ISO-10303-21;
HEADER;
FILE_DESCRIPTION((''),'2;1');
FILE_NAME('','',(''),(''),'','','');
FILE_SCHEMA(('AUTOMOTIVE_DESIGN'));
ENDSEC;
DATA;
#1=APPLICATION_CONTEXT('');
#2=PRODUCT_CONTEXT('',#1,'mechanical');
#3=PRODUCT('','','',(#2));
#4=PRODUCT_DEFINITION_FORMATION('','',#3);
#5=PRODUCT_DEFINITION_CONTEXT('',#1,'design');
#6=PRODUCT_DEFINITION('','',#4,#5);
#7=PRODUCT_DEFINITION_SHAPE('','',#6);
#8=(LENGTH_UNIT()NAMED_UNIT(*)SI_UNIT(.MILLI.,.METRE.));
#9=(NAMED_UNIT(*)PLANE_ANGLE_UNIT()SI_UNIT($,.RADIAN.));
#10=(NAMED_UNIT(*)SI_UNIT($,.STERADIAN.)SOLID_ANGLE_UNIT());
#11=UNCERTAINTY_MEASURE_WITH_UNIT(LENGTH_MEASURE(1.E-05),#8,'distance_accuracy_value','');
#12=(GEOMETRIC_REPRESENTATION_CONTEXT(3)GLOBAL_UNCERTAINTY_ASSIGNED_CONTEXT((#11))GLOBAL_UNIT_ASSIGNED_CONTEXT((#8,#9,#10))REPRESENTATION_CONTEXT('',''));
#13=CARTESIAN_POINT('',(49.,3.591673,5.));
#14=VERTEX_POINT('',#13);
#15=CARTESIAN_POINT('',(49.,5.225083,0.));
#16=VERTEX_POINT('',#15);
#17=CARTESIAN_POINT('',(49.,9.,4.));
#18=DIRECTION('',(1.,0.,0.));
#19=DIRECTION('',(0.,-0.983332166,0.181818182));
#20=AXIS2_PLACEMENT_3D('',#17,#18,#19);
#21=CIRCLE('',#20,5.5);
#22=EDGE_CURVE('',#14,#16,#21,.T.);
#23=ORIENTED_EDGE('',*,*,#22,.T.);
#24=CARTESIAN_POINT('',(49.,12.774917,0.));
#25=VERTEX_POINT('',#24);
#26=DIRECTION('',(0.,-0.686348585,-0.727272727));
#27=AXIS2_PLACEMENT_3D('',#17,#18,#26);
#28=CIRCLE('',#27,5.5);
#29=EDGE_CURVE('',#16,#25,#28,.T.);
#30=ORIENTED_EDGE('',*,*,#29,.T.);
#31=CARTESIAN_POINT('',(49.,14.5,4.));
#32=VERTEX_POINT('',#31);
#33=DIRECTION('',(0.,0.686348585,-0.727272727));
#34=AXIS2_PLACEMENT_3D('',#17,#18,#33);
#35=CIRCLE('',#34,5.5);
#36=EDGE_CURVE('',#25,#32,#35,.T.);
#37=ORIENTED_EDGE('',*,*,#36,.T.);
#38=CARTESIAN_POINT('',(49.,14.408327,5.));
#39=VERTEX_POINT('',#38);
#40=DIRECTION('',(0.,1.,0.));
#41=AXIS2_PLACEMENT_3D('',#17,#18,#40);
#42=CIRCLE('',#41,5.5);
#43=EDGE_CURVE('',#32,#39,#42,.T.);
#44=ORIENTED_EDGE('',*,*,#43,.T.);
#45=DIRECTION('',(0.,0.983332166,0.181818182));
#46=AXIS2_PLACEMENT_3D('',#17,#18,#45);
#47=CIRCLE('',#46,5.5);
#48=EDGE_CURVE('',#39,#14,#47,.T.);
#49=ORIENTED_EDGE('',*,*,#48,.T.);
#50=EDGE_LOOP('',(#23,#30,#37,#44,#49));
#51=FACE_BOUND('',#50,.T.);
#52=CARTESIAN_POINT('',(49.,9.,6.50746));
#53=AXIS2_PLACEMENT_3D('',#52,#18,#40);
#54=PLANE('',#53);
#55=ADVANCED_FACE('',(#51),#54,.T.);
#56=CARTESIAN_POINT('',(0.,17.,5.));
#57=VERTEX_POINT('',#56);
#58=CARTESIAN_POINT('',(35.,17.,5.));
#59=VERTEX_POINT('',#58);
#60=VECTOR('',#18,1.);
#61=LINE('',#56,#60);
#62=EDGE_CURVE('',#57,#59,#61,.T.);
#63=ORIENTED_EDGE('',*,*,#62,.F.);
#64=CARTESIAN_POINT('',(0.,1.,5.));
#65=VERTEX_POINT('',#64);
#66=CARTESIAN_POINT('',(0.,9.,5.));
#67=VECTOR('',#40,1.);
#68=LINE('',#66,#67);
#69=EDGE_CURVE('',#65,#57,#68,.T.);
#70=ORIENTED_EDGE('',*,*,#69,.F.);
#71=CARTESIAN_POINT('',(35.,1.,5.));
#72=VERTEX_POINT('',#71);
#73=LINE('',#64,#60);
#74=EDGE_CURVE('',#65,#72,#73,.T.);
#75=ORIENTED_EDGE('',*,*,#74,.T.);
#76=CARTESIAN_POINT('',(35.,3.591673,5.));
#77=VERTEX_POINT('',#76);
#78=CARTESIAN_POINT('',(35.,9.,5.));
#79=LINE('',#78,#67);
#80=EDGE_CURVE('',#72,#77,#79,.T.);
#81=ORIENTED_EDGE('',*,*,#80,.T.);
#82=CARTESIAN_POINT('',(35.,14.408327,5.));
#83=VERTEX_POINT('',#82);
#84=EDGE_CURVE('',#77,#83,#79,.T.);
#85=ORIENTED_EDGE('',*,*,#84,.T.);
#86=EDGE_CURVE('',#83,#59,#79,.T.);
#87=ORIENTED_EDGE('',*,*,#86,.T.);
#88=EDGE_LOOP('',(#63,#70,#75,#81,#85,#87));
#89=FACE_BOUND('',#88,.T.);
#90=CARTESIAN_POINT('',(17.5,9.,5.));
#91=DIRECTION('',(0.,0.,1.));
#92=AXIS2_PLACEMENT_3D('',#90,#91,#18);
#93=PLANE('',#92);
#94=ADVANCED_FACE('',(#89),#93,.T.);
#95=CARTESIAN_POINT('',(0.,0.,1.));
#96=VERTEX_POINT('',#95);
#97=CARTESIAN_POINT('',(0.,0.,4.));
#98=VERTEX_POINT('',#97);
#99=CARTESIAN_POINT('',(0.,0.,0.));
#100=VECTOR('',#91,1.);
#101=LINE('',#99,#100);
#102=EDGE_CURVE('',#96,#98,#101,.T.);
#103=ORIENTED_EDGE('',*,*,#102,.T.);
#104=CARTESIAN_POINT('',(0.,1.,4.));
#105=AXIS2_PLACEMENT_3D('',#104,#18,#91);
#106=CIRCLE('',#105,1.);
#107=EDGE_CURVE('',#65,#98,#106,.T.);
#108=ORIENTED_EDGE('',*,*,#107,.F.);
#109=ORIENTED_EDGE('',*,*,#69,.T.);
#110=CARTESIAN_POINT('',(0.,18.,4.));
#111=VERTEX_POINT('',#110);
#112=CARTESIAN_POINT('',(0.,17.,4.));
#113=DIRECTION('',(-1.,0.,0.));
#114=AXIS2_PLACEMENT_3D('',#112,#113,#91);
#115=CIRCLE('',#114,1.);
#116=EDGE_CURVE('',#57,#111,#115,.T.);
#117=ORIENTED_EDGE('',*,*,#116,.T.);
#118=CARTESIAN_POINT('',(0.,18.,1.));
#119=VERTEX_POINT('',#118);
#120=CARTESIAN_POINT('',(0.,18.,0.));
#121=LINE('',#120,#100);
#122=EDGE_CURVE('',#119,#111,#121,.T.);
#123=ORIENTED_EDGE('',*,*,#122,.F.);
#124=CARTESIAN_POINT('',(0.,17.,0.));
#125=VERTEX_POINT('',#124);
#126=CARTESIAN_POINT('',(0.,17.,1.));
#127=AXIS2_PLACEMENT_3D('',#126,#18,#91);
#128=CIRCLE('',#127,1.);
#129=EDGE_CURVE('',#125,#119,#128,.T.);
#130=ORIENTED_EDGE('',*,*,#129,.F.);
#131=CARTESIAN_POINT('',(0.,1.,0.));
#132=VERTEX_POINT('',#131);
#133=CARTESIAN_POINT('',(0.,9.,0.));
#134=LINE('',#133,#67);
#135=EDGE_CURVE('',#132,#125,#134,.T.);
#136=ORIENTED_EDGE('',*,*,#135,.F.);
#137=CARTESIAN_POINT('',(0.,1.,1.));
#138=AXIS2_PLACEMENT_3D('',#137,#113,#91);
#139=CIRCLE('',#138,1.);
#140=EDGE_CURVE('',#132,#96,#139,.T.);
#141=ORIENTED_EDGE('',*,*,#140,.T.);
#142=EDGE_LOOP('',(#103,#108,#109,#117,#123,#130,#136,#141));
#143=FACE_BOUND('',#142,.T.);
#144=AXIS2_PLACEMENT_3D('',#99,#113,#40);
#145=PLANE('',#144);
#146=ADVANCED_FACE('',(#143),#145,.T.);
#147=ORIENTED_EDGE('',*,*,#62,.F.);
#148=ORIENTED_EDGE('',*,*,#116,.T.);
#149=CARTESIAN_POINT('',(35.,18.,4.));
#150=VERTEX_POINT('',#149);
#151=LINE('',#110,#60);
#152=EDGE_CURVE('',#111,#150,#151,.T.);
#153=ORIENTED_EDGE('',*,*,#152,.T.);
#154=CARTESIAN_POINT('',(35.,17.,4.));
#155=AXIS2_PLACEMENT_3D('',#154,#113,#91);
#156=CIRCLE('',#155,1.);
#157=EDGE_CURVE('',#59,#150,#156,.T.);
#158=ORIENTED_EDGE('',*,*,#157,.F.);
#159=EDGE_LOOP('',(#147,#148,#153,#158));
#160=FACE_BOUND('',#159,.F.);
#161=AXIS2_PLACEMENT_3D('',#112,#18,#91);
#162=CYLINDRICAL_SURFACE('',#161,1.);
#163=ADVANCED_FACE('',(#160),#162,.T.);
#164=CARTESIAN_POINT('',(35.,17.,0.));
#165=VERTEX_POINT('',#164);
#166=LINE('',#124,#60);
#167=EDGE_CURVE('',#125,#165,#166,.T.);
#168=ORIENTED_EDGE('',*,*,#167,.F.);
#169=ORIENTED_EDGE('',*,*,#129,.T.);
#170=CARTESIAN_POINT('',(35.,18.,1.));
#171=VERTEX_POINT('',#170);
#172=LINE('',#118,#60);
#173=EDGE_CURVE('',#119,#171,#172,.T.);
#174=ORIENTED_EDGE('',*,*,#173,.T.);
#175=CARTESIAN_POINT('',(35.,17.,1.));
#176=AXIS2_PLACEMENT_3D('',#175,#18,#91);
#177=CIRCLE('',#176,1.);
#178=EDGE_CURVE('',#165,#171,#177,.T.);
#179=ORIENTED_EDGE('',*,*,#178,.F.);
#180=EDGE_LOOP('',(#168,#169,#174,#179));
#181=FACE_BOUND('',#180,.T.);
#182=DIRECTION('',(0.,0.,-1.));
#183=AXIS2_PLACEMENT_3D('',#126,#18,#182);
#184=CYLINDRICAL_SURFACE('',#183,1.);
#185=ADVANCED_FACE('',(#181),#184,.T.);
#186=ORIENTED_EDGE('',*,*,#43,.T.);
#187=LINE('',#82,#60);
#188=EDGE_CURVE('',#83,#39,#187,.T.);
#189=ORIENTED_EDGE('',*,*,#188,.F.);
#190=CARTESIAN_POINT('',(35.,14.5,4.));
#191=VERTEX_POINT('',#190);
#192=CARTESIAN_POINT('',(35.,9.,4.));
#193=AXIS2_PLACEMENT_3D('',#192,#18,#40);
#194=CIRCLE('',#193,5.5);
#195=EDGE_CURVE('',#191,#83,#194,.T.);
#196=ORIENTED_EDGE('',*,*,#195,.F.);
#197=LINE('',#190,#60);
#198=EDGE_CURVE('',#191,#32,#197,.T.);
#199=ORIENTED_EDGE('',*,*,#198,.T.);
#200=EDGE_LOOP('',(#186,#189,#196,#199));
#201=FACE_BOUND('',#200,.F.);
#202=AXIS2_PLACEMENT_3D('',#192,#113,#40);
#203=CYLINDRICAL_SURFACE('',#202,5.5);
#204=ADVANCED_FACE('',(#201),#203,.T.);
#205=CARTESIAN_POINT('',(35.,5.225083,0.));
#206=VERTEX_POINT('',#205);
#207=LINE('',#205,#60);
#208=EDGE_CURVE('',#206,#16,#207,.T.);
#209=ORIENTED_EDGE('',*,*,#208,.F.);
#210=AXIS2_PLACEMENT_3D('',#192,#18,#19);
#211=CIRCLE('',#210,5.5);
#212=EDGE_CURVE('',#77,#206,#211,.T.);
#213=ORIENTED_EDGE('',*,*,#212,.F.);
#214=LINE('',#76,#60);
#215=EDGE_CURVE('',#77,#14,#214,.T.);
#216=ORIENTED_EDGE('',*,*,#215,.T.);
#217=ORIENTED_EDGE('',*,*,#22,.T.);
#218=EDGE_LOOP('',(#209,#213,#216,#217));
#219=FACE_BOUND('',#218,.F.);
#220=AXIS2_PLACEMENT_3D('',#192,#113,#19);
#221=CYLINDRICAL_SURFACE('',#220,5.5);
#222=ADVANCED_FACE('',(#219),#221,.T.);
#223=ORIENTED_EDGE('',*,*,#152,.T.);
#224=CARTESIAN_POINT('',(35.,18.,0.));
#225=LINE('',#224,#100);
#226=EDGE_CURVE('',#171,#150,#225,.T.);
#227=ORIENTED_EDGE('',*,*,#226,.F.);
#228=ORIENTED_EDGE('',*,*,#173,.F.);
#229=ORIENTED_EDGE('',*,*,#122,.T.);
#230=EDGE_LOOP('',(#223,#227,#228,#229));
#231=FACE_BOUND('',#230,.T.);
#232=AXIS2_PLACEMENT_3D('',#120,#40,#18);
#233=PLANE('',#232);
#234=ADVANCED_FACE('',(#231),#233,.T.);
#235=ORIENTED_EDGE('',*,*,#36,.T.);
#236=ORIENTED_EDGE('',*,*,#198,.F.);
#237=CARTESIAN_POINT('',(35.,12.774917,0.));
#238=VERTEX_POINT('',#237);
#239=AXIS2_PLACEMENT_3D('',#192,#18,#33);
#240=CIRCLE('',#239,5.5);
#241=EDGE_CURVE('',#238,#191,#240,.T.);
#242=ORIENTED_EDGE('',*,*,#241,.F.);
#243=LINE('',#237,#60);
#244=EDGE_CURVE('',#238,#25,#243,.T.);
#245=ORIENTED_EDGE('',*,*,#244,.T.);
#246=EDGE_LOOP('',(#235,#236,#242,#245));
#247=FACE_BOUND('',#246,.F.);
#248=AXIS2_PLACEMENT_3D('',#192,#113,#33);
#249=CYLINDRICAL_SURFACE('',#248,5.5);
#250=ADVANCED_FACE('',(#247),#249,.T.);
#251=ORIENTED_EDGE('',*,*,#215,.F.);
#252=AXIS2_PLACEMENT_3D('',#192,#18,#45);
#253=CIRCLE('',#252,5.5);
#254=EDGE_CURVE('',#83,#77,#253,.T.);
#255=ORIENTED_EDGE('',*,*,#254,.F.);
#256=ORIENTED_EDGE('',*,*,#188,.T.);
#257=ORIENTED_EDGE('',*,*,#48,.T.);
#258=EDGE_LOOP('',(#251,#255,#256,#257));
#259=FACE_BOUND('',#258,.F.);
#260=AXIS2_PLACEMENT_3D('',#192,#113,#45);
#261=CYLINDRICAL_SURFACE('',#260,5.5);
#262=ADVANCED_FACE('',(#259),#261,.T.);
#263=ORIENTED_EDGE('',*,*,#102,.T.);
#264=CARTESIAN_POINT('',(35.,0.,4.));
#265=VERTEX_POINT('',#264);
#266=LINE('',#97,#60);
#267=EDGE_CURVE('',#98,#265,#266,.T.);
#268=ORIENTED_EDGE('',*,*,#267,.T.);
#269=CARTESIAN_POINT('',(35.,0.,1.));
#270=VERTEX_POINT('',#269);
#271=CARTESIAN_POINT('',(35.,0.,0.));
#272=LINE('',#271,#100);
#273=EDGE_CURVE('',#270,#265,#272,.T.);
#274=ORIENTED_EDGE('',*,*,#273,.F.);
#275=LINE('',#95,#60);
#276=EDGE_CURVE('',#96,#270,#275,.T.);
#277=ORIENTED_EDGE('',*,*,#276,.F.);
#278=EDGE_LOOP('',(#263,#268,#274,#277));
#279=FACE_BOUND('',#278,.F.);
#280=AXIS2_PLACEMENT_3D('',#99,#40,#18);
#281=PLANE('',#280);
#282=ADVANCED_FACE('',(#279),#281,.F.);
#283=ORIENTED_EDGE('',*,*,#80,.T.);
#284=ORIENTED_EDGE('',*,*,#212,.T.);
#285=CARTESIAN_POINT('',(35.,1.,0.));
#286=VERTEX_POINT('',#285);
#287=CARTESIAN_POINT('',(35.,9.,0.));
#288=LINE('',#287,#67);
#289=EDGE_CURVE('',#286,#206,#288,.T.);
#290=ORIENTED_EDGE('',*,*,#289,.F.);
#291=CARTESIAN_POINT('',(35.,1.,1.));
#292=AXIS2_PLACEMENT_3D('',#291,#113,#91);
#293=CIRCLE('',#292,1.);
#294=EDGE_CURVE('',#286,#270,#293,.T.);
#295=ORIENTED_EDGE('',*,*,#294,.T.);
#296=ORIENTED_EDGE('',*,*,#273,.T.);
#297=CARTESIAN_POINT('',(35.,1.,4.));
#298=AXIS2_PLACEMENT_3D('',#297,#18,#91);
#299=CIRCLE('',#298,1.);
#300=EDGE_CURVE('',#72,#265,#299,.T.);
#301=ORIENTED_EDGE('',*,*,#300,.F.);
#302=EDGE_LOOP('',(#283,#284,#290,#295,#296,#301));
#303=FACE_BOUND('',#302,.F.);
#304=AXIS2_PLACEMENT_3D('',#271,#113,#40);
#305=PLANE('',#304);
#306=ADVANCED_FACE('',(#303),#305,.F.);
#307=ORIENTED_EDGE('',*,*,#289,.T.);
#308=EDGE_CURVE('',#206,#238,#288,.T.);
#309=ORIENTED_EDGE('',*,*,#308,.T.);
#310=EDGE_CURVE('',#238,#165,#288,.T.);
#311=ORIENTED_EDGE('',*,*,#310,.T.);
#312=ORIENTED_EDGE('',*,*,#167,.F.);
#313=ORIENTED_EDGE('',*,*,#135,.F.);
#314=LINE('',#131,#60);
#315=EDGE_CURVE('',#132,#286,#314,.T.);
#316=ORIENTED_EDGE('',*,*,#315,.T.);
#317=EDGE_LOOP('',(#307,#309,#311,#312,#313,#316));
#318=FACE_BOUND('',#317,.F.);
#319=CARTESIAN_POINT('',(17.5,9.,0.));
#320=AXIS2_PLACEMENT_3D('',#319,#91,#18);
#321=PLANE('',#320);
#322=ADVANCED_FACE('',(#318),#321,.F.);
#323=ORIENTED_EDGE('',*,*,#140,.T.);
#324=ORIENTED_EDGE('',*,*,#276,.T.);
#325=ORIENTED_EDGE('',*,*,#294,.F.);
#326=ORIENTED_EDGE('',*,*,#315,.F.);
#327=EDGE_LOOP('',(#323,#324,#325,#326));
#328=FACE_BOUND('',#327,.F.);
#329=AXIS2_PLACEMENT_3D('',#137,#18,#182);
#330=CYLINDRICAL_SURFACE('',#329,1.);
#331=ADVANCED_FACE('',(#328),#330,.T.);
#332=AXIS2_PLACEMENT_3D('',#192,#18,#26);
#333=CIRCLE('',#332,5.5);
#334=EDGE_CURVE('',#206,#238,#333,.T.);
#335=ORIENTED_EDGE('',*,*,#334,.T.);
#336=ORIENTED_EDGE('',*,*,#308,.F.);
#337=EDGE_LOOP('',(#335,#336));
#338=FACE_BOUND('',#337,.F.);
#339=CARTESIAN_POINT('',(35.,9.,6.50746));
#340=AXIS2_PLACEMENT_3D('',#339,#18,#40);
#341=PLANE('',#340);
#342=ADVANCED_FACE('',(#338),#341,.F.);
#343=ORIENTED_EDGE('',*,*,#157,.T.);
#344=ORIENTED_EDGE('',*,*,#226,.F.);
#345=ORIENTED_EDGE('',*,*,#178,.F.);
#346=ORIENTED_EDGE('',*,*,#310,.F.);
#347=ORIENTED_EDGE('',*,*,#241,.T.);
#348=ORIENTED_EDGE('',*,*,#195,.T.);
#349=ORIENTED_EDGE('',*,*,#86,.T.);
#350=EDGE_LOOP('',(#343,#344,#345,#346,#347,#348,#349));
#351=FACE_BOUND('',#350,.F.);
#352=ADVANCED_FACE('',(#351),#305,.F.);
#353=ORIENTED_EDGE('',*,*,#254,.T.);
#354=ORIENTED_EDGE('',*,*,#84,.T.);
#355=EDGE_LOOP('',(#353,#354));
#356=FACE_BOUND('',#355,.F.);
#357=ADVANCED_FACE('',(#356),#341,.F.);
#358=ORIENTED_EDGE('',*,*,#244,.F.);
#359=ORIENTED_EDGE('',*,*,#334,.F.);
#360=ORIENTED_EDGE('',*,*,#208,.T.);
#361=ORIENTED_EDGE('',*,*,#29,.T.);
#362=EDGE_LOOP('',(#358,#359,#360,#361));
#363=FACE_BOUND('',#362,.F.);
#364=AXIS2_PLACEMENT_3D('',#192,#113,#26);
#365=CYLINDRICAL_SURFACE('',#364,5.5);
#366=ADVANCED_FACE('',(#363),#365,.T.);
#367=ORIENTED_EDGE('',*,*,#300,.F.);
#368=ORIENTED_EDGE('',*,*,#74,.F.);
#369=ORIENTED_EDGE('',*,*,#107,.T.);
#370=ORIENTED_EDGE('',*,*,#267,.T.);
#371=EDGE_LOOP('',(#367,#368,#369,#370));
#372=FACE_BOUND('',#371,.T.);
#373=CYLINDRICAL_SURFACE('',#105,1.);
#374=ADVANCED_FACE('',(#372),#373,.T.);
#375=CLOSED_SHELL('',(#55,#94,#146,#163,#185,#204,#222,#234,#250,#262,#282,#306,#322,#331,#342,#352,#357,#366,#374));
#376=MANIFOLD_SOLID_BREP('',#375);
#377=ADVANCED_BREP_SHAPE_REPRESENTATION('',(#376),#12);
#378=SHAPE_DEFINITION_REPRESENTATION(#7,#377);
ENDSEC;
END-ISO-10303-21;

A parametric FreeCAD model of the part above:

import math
import FreeCAD as App
import Part
import Sketcher

V = App.Vector


def edges_at(feature, points):
    """Names of the edges that pass closest to the given points."""
    edges = feature.Shape.Edges
    near = lambda p: min(range(len(edges)), key=lambda i: edges[i].distToShape(Part.Vertex(*p))[0])
    return sorted({f"Edge{near(p) + 1}" for p in points})


def add_polygon(sketch, points):
    """Adds a closed chain of lines whose ends are joined by coincident constraints."""
    first, n = sketch.GeometryCount, len(points)
    for a, b in zip(points, points[1:] + points[:1]):
        sketch.addGeometry(Part.LineSegment(App.Vector(*a, 0), App.Vector(*b, 0)), False)
    for i in range(n):
        sketch.addConstraint(Sketcher.Constraint("Coincident", first + i, 2, first + (i + 1) % n, 1))

doc = App.newDocument("Part")
params = doc.addObject("Spreadsheet::Sheet", "Params")
for row, (alias, value) in enumerate([
    ("sketch1_width", "35 mm"),
    ("sketch1_height", "18 mm"),
    ("pad1_length", "5 mm"),
    ("sketch2_radius", "5.5 mm"),
    ("pad2_length", "14 mm"),
    ("fillet_radius", "1 mm"),
], start=1):
    params.set(f"A{row}", alias)
    params.set(f"B{row}", "=" + value)
    params.setAlias(f"B{row}", alias)

body = doc.addObject("PartDesign::Body", "Body")

# Sketch on XY plane
sketch1 = body.newObject("Sketcher::SketchObject", "Sketch")
sketch1.AttachmentSupport = (doc.getObject("XY_Plane"), [""])
sketch1.MapMode = "FlatFace"
add_polygon(sketch1, [(0, 18), (0, 0), (35, 0), (35, 18)])  # lines 0-3
sketch1.addConstraint(Sketcher.Constraint("Vertical", 0))
sketch1.addConstraint(Sketcher.Constraint("Horizontal", 1))
sketch1.addConstraint(Sketcher.Constraint("Vertical", 2))
sketch1.addConstraint(Sketcher.Constraint("Horizontal", 3))
sketch1.addConstraint(Sketcher.Constraint("Coincident", 0, 2, -1, 1))
sketch1.addConstraint(Sketcher.Constraint("DistanceX", 1, 1, 1, 2, 35.0))
sketch1.addConstraint(Sketcher.Constraint("DistanceY", 0, 2, 0, 1, 18.0))
sketch1.setExpression("Constraints[9]", "Params.sketch1_width")
sketch1.setExpression("Constraints[10]", "Params.sketch1_height")
pad1 = body.newObject("PartDesign::Pad", "Pad")
pad1.Profile = sketch1
pad1.setExpression("Length", "Params.pad1_length")

# Sketch on YZ plane
sketch2 = body.newObject("Sketcher::SketchObject", "Sketch001")
sketch2.AttachmentSupport = (doc.getObject("YZ_Plane"), [""])
sketch2.MapMode = "FlatFace"
sketch2.AttachmentOffset = App.Placement(V(0, 0, 35), App.Rotation())
sketch2.addGeometry(Part.ArcOfCircle(Part.Circle(V(9, 4, 0), V(0, 0, 1), 5.5), math.radians(10.475682), math.radians(169.524318)), False)
sketch2.addGeometry(Part.ArcOfCircle(Part.Circle(V(9, 4, 0), V(0, 0, 1), 5.5), math.radians(169.524318), math.radians(226.658242)), False)
sketch2.addGeometry(Part.ArcOfCircle(Part.Circle(V(9, 4, 0), V(0, 0, 1), 5.5), math.radians(-133.341758), math.radians(-46.658242)), False)
sketch2.addGeometry(Part.ArcOfCircle(Part.Circle(V(9, 4, 0), V(0, 0, 1), 5.5), math.radians(-46.658242), math.radians(0)), False)
sketch2.addGeometry(Part.ArcOfCircle(Part.Circle(V(9, 4, 0), V(0, 0, 1), 5.5), math.radians(0), math.radians(10.475682)), False)
sketch2.addConstraint(Sketcher.Constraint("Tangent", 0, 2, 1, 1))
sketch2.addConstraint(Sketcher.Constraint("Tangent", 1, 2, 2, 1))
sketch2.addConstraint(Sketcher.Constraint("Tangent", 2, 2, 3, 1))
sketch2.addConstraint(Sketcher.Constraint("Tangent", 3, 2, 4, 1))
sketch2.addConstraint(Sketcher.Constraint("Tangent", 4, 2, 0, 1))
sketch2.addConstraint(Sketcher.Constraint("Coincident", 2, 3, 0, 3))
sketch2.addConstraint(Sketcher.Constraint("PointOnObject", 1, 2, -1))
sketch2.addConstraint(Sketcher.Constraint("PointOnObject", 2, 2, -1))
sketch2.addConstraint(Sketcher.Constraint("Horizontal", 4, 3, 3, 2))
sketch2.addConstraint(Sketcher.Constraint("Horizontal", 0, 2, 4, 2))
sketch2.addConstraint(Sketcher.Constraint("Radius", 0, 5.5))
sketch2.addConstraint(Sketcher.Constraint("DistanceX", -1, 1, 0, 3, 9.0))
sketch2.addConstraint(Sketcher.Constraint("DistanceY", -1, 1, 0, 3, 4.0))
sketch2.addConstraint(Sketcher.Constraint("DistanceY", -1, 1, 0, 2, 5.0))
sketch2.setExpression("Constraints[10]", "Params.sketch2_radius")
pad2 = body.newObject("PartDesign::Pad", "Pad001")
pad2.Profile = sketch2
pad2.setExpression("Length", "Params.pad2_length")
doc.recompute()

fillet = body.newObject("PartDesign::Fillet", "Fillet")
fillet.Base = (pad2, edges_at(pad2, [
    (17.5, 0, 5),
    (17.5, 18, 5),
    (17.5, 0, 0),
    (17.5, 18, 0),
]))
fillet.setExpression("Radius", "Params.fillet_radius")

doc.recompute()
